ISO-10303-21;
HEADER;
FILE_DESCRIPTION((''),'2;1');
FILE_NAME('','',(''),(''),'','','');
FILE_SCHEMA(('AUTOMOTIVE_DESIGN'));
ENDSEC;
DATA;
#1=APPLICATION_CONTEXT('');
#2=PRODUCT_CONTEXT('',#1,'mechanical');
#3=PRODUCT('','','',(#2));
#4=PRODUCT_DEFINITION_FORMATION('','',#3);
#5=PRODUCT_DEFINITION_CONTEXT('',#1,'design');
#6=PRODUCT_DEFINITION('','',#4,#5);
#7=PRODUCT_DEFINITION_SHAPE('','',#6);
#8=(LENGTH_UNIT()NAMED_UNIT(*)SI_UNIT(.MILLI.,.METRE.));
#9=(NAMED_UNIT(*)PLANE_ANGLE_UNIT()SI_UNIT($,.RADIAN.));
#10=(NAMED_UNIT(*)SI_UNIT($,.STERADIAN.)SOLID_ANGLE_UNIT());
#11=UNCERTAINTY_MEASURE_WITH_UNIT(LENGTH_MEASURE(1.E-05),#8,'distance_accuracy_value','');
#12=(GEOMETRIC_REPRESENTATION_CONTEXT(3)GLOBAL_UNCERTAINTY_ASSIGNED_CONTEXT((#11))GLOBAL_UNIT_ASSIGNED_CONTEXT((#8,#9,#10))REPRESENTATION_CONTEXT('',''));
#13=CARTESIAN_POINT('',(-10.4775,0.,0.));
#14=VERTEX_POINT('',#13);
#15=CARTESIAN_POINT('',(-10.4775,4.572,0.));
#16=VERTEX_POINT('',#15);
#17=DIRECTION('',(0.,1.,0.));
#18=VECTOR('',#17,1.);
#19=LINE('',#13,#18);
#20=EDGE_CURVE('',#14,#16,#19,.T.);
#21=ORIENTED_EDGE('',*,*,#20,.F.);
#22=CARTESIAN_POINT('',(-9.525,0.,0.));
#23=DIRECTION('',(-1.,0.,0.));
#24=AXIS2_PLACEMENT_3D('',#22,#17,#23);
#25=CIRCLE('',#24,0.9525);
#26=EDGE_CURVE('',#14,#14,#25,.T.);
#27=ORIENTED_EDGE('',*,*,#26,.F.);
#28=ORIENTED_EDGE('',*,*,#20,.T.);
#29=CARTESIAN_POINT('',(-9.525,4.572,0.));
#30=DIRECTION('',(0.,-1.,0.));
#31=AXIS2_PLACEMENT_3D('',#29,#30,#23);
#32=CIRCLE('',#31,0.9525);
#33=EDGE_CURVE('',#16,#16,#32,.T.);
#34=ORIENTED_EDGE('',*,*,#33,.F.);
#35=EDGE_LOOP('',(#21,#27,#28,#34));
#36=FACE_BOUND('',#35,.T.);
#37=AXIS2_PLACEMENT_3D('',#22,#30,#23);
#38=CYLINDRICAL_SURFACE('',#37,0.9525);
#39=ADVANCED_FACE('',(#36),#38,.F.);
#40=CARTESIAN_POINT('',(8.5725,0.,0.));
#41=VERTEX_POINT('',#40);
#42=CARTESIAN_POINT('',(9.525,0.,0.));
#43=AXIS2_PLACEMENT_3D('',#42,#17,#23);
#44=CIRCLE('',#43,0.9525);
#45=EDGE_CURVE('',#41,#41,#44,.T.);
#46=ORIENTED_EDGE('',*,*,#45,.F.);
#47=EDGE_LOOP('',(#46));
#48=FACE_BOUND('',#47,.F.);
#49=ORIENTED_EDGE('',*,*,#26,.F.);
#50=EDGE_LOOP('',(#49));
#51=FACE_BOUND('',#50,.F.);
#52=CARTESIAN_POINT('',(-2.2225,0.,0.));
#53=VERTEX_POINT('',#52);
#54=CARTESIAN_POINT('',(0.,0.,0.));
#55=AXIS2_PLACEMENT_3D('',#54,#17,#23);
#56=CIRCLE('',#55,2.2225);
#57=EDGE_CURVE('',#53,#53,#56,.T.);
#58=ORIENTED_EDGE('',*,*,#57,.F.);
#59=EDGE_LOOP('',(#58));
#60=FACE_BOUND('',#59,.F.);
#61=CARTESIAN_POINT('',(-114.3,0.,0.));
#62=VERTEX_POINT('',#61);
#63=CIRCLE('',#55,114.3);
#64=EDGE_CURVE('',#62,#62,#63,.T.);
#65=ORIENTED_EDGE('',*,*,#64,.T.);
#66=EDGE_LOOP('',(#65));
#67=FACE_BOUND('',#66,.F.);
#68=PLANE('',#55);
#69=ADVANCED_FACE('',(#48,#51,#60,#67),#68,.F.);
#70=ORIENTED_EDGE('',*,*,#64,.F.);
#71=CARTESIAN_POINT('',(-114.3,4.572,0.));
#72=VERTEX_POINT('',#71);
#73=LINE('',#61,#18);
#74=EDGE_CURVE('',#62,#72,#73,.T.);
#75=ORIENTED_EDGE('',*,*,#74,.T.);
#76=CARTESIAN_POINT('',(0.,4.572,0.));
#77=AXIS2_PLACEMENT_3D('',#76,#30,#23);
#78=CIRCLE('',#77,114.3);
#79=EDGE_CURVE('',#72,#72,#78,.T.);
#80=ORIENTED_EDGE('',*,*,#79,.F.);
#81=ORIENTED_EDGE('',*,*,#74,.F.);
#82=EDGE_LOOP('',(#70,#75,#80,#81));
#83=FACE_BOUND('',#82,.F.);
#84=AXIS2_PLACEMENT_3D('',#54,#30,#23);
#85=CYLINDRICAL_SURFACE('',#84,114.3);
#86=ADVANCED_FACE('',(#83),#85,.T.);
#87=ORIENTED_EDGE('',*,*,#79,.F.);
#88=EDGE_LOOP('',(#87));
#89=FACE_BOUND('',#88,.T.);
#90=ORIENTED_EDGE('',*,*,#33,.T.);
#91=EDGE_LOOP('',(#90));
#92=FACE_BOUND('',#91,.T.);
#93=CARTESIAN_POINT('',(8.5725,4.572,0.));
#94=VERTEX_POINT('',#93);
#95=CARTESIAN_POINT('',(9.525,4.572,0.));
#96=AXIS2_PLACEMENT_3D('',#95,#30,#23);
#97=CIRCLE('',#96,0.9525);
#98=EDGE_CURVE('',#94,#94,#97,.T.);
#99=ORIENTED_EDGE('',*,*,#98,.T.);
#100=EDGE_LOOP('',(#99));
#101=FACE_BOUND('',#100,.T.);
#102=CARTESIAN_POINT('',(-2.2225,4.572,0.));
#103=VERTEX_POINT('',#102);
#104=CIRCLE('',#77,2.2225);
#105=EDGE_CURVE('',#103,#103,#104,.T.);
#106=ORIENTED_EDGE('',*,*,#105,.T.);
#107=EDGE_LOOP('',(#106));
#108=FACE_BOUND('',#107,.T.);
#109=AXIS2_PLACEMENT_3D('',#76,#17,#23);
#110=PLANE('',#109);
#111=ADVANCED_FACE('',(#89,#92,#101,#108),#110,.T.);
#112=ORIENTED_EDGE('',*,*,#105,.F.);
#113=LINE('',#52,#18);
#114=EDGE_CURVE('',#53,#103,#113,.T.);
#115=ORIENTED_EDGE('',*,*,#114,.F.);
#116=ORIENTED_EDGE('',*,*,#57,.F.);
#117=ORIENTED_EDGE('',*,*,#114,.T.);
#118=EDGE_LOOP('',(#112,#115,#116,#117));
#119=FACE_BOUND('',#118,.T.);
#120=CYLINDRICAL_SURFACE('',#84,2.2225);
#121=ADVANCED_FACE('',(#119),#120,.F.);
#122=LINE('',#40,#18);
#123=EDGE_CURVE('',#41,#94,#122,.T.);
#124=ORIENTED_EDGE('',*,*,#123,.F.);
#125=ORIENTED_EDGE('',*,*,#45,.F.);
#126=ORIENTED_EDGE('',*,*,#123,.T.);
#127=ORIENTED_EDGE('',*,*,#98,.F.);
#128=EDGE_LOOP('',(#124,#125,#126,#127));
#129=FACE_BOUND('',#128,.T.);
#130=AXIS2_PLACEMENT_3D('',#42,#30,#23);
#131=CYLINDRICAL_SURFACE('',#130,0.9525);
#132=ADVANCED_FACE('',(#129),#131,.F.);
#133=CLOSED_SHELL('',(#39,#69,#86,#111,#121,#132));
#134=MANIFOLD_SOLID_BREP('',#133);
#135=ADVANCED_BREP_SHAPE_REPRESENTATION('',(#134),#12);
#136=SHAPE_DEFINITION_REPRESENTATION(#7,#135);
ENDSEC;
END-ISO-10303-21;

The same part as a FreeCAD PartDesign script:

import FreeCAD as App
import Part
import Sketcher
Q = App.Units.Quantity

doc = App.newDocument("Part")
body = doc.addObject("PartDesign::Body", "Body")

sketch1 = body.newObject("Sketcher::SketchObject", "Sketch")
sketch1.AttachmentSupport = (doc.getObject("XZ_Plane"), [""])
sketch1.MapMode = "FlatFace"
sketch1.addGeometry(Part.Circle(App.Vector(0, 0, 0), App.Vector(0, 0, 1), 114.3), False)
sketch1.addGeometry(Part.Circle(App.Vector(-9.525, 0, 0), App.Vector(0, 0, 1), 0.9525), False)
sketch1.addGeometry(Part.Circle(App.Vector(0, 0, 0), App.Vector(0, 0, 1), 2.2225), False)
sketch1.addGeometry(Part.Circle(App.Vector(9.525, 0, 0), App.Vector(0, 0, 1), 0.9525), False)
sketch1.addConstraint(Sketcher.Constraint("Coincident", 0, 3, -1, 1))
sketch1.addConstraint(Sketcher.Constraint("Coincident", 2, 3, -1, 1))
sketch1.addConstraint(Sketcher.Constraint("Equal", 1, 3))
sketch1.addConstraint(Sketcher.Constraint("Symmetric", 1, 3, 3, 3, -1, 1))
sketch1.addConstraint(Sketcher.Constraint("PointOnObject", 1, 3, -1))
sketch1.addConstraint(Sketcher.Constraint("Diameter", 0, Q("9 in")))
sketch1.addConstraint(Sketcher.Constraint("Diameter", 1, Q("0.075 in")))
sketch1.addConstraint(Sketcher.Constraint("Diameter", 2, Q("0.175 in")))
sketch1.addConstraint(Sketcher.Constraint("DistanceX", 1, 3, -1, 1, Q("0.375 in")))
pad1 = body.newObject("PartDesign::Pad", "Pad")
pad1.Profile = sketch1
pad1.Length = Q("0.18 in")
pad1.Reversed = True

doc.recompute()
